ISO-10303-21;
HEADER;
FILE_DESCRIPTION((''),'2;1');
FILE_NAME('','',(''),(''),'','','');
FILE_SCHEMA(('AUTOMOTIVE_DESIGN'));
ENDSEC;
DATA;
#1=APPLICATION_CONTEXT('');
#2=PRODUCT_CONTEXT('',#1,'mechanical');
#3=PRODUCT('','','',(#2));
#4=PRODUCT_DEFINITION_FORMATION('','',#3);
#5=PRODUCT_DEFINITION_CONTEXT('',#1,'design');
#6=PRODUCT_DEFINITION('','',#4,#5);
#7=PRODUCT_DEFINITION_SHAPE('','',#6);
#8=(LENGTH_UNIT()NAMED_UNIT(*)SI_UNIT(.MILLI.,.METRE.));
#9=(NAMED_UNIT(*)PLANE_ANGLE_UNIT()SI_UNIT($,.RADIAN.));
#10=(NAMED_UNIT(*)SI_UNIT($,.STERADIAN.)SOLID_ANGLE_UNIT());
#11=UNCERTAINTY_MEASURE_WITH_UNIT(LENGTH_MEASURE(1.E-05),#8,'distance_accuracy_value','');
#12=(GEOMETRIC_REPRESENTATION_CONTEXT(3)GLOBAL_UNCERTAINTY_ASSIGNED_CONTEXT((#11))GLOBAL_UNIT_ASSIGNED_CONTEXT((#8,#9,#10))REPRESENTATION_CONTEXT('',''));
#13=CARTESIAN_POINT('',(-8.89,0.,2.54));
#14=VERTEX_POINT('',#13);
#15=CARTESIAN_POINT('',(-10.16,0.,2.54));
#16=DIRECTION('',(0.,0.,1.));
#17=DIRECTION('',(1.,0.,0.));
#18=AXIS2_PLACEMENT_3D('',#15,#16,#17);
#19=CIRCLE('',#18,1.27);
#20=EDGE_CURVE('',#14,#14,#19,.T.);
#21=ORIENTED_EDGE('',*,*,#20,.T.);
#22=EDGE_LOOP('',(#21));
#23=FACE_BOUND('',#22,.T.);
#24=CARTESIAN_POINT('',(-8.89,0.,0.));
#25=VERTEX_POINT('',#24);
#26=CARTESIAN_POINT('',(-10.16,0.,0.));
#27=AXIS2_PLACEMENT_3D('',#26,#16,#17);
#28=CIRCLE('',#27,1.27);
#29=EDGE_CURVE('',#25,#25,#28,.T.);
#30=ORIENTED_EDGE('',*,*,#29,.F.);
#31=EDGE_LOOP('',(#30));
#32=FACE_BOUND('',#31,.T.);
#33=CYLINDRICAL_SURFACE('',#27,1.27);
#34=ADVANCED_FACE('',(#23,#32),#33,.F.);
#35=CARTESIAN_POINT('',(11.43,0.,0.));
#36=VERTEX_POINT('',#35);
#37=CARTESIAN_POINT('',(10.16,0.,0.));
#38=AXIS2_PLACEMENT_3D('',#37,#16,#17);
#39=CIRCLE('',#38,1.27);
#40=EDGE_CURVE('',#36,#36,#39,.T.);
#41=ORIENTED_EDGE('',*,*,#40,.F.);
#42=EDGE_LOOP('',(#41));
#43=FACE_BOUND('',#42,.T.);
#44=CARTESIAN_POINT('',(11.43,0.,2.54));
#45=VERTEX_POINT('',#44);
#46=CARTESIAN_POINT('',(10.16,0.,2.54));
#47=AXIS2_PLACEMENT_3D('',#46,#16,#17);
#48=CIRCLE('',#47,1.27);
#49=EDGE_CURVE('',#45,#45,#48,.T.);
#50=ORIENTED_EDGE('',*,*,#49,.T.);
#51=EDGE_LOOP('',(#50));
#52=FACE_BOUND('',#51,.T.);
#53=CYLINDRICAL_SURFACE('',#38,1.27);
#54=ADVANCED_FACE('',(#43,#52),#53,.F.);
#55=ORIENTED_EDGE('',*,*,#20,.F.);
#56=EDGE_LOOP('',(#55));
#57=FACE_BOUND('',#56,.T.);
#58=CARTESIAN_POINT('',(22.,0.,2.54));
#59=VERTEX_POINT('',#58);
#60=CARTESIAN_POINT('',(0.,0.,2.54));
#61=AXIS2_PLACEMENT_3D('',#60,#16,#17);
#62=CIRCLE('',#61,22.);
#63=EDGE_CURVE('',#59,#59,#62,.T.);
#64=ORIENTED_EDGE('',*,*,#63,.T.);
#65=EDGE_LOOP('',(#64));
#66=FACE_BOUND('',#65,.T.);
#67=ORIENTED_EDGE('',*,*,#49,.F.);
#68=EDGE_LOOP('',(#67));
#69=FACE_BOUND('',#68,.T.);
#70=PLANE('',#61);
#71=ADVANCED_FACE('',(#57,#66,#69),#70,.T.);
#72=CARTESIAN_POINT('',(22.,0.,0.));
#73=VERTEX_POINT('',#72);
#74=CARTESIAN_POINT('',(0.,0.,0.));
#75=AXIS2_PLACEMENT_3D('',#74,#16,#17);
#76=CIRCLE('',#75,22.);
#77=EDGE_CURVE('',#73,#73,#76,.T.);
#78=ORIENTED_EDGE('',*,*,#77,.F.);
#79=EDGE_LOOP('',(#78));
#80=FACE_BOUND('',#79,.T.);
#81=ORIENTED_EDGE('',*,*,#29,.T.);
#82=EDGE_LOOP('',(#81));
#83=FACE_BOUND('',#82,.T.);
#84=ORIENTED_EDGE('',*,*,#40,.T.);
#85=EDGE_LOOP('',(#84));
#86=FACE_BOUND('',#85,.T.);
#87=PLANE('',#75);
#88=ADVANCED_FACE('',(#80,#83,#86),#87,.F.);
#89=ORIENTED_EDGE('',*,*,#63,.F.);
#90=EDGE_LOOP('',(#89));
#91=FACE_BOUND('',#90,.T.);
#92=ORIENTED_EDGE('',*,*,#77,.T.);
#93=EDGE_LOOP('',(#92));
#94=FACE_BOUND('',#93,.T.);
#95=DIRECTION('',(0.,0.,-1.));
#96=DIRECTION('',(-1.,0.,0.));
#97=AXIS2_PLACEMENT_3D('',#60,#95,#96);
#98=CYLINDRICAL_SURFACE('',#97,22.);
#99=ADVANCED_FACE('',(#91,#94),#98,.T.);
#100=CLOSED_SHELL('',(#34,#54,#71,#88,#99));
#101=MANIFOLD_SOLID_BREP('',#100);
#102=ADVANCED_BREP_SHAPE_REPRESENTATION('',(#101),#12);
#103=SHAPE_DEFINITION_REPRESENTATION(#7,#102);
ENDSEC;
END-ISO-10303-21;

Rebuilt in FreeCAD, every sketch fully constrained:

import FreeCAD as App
import Part
import Sketcher

doc = App.newDocument("Part")
body = doc.addObject("PartDesign::Body", "Body")

sketch1 = doc.addObject("Sketcher::SketchObject", "Sketch")
body.addObject(sketch1)
sketch1.AttachmentSupport = (doc.XY_Plane, [""])
sketch1.MapMode = "FlatFace"
sketch1.addGeometry(Part.Circle(App.Vector(0, 0, 0), App.Vector(0, 0, 1), 22), False)
sketch1.addConstraint([
    Sketcher.Constraint("Coincident", 0, 3, -1, 1),
    Sketcher.Constraint("Diameter", 0, 44.0),
])
pad1 = doc.addObject("PartDesign::Pad", "Pad")
body.addObject(pad1)
pad1.Profile = sketch1
pad1.Length = 2.54

sketch2 = doc.addObject("Sketcher::SketchObject", "Sketch001")
body.addObject(sketch2)
sketch2.AttachmentSupport = (doc.XY_Plane, [""])
sketch2.MapMode = "FlatFace"
sketch2.AttachmentOffset = App.Placement(App.Vector(0, 0, 2.54), App.Rotation())
sketch2.addGeometry([
    Part.Circle(App.Vector(-10.2, 0, 0), App.Vector(0, 0, 1), 1.3),
    Part.Circle(App.Vector(10.2, 0, 0), App.Vector(0, 0, 1), 1.3),
], False)
sketch2.addConstraint([
    Sketcher.Constraint("Equal", 0, 1),
    Sketcher.Constraint("Symmetric", 0, 3, 1, 3, -1, 1),
    Sketcher.Constraint("PointOnObject", 0, 3, -1),
    Sketcher.Constraint("Diameter", 0, 2.54),
    Sketcher.Constraint("DistanceX", 0, 3, -1, 1, 10.16),
])
pocket1 = doc.addObject("PartDesign::Pocket", "Pocket")
body.addObject(pocket1)
pocket1.Profile = sketch2
pocket1.Type = "ThroughAll"

doc.recompute()
